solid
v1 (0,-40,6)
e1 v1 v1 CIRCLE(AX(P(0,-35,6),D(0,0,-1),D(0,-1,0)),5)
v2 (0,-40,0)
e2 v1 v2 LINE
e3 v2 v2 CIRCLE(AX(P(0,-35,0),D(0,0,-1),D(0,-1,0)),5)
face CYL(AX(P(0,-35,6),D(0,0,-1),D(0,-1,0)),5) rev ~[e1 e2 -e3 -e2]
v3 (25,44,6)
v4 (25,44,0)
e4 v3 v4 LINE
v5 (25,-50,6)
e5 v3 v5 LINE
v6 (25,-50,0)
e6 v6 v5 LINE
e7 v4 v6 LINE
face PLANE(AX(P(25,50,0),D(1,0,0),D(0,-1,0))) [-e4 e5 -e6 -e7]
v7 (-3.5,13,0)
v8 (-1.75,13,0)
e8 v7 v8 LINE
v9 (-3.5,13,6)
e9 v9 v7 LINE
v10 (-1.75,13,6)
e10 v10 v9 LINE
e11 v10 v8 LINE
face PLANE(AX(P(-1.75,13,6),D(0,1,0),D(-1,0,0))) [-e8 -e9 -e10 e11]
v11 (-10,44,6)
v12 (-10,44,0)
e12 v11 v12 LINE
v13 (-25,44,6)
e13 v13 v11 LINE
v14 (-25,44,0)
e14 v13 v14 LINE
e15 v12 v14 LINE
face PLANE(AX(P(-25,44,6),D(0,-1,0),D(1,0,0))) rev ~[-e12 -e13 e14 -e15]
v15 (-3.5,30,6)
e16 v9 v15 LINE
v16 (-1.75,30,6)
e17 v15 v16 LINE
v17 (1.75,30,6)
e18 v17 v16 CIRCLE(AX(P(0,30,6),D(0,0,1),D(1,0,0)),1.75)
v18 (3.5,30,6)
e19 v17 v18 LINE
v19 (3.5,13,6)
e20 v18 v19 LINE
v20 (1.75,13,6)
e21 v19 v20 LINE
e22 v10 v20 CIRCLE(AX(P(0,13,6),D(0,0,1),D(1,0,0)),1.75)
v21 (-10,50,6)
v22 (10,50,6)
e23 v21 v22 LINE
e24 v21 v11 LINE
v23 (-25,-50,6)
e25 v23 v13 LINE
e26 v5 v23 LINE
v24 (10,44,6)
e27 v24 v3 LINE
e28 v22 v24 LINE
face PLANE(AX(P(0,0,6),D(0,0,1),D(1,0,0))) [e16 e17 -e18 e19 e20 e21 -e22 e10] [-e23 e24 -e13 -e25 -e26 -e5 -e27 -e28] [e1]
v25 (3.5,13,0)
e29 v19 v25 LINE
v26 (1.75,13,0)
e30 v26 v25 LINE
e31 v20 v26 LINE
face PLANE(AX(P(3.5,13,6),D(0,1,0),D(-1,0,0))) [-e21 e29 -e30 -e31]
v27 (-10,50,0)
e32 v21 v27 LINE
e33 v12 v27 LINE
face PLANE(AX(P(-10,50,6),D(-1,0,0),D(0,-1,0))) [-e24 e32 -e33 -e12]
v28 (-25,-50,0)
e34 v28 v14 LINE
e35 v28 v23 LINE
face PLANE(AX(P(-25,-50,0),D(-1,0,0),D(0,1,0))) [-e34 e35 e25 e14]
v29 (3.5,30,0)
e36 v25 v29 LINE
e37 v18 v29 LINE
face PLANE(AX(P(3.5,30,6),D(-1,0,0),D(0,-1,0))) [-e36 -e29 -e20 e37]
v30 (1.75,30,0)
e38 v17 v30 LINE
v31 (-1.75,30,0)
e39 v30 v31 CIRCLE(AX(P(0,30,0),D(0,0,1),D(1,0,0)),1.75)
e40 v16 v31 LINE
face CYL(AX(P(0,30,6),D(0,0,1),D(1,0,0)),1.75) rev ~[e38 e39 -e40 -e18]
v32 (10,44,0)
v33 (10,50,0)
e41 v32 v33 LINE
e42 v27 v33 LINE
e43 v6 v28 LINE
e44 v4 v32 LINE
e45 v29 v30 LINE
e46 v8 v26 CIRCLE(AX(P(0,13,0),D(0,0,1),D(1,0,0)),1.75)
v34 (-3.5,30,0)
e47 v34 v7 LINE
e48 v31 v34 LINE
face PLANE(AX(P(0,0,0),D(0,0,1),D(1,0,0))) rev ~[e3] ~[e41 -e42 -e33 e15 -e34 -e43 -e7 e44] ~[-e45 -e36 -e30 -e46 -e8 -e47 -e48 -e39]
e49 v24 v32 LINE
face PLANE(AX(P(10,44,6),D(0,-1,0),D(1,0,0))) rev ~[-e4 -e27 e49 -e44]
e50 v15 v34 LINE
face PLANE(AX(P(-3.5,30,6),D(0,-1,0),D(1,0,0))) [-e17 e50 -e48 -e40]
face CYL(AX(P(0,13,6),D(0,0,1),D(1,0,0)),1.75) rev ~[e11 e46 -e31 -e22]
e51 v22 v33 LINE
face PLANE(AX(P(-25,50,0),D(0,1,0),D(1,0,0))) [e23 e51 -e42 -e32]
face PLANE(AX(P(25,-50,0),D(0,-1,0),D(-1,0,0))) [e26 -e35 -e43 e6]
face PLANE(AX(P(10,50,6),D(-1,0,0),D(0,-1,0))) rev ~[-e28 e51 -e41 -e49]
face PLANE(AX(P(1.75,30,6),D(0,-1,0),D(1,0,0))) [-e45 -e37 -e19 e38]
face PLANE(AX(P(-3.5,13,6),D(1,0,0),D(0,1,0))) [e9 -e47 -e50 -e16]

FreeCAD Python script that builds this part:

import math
import FreeCAD as App
import Part
import Sketcher
from FreeCAD import Vector
Q = App.Units.Quantity


def add_polygon(sketch, points):
    """Adds a closed chain of lines whose ends are joined by coincident constraints."""
    first, n = sketch.GeometryCount, len(points)
    for a, b in zip(points, points[1:] + points[:1]):
        sketch.addGeometry(Part.LineSegment(App.Vector(*a, 0), App.Vector(*b, 0)), False)
    for i in range(n):
        sketch.addConstraint(Sketcher.Constraint("Coincident", first + i, 2, first + (i + 1) % n, 1))

doc = App.newDocument("Part")
body = doc.addObject("PartDesign::Body", "Body")

sketch1 = doc.addObject("Sketcher::SketchObject", "Sketch")
body.addObject(sketch1)
sketch1.AttachmentSupport = (doc.XY_Plane, [""])
sketch1.MapMode = "FlatFace"
add_polygon(sketch1, [(25, 50), (-25, 50), (-25, -50), (25, -50)])
sketch1.addConstraint([
    Sketcher.Constraint("Horizontal", 0),
    Sketcher.Constraint("Vertical", 1),
    Sketcher.Constraint("Horizontal", 2),
    Sketcher.Constraint("Vertical", 3),
    Sketcher.Constraint("Symmetric", 0, 2, 2, 2, -1, 1),
    Sketcher.Constraint("DistanceX", 0, 2, 0, 1, Q("50 mm")),
    Sketcher.Constraint("DistanceY", 1, 2, 1, 1, Q("100 mm")),
])
pad1 = doc.addObject("PartDesign::Pad", "Pad")
body.addObject(pad1)
pad1.Profile = sketch1
pad1.Length = 6

sketch2 = doc.addObject("Sketcher::SketchObject", "Sketch001")
body.addObject(sketch2)
sketch2.AttachmentSupport = (doc.XY_Plane, [""])
sketch2.MapMode = "FlatFace"
sketch2.AttachmentOffset = App.Placement(Vector(0, 0, 6), App.Rotation())
sketch2.addGeometry(Part.Circle(Vector(0, -35, 0), Vector(0, 0, 1), 5), False)
sketch2.addConstraint([
    Sketcher.Constraint("PointOnObject", 0, 3, -2),
    Sketcher.Constraint("Diameter", 0, Q("10 mm")),
    Sketcher.Constraint("DistanceY", 0, 3, -1, 1, Q("35 mm")),
])
doc.recompute()
hole = doc.addObject("PartDesign::Hole", "Hole")
body.addObject(hole)
hole.Profile = sketch2
hole.ThreadType = "None"
hole.Diameter = 10
hole.DepthType = "ThroughAll"

sketch3 = doc.addObject("Sketcher::SketchObject", "Sketch002")
body.addObject(sketch3)
sketch3.AttachmentSupport = (doc.XY_Plane, [""])
sketch3.MapMode = "FlatFace"
sketch3.AttachmentOffset = App.Placement(Vector(0, 0, 6), App.Rotation())
sketch3.addGeometry([
    Part.LineSegment(Vector(3.5, 30, 0), Vector(1.8, 30, 0)),
    Part.ArcOfCircle(Part.Circle(Vector(0, 30, 0), Vector(0, 0, 1), 1.8), math.radians(0), math.radians(180)),
    Part.LineSegment(Vector(-1.8, 30, 0), Vector(-3.5, 30, 0)),
    Part.LineSegment(Vector(-3.5, 30, 0), Vector(-3.5, 13, 0)),
    Part.LineSegment(Vector(-3.5, 13, 0), Vector(-1.8, 13, 0)),
    Part.ArcOfCircle(Part.Circle(Vector(0, 13, 0), Vector(0, 0, 1), 1.8), math.radians(180), math.radians(360)),
    Part.LineSegment(Vector(1.8, 13, 0), Vector(3.5, 13, 0)),
    Part.LineSegment(Vector(3.5, 13, 0), Vector(3.5, 30, 0)),
], False)
sketch3.addConstraint([
    Sketcher.Constraint("Coincident", 0, 2, 1, 1),
    Sketcher.Constraint("Coincident", 1, 2, 2, 1),
    Sketcher.Constraint("Coincident", 2, 2, 3, 1),
    Sketcher.Constraint("Coincident", 3, 2, 4, 1),
    Sketcher.Constraint("Coincident", 4, 2, 5, 1),
    Sketcher.Constraint("Coincident", 5, 2, 6, 1),
    Sketcher.Constraint("Coincident", 6, 2, 7, 1),
    Sketcher.Constraint("Coincident", 7, 2, 0, 1),
    Sketcher.Constraint("Horizontal", 0),
    Sketcher.Constraint("Horizontal", 2),
    Sketcher.Constraint("Vertical", 3),
    Sketcher.Constraint("Horizontal", 4),
    Sketcher.Constraint("Horizontal", 6),
    Sketcher.Constraint("Vertical", 7),
    Sketcher.Constraint("Equal", 1, 5),
    Sketcher.Constraint("Symmetric", 0, 2, 1, 2, -2),
    Sketcher.Constraint("Symmetric", 4, 2, 5, 2, -2),
    Sketcher.Constraint("Horizontal", 1, 3, 0, 2),
    Sketcher.Constraint("Horizontal", 5, 3, 3, 2),
    Sketcher.Constraint("Equal", 0, 2),
    Sketcher.Constraint("DistanceY", 3, 2, 3, 1, Q("17 mm")),
    Sketcher.Constraint("Radius", 1, Q("1.75 mm")),
    Sketcher.Constraint("DistanceX", 3, 2, 6, 2, Q("7 mm")),
    Sketcher.Constraint("DistanceY", -1, 1, 1, 3, Q("30 mm")),
])
pocket1 = doc.addObject("PartDesign::Pocket", "Pocket")
body.addObject(pocket1)
pocket1.Profile = sketch3
pocket1.Type = "UpToFirst"

sketch4 = doc.addObject("Sketcher::SketchObject", "Sketch003")
body.addObject(sketch4)
sketch4.AttachmentSupport = (doc.XY_Plane, [""])
sketch4.MapMode = "FlatFace"
sketch4.AttachmentOffset = App.Placement(Vector(0, 0, 6), App.Rotation())
add_polygon(sketch4, [(25, 50), (10, 50), (10, 44), (25, 44)])
add_polygon(sketch4, [(-10, 50), (-25, 50), (-25, 44), (-10, 44)])
sketch4.addConstraint([
    Sketcher.Constraint("Horizontal", 0),
    Sketcher.Constraint("Vertical", 1),
    Sketcher.Constraint("Horizontal", 2),
    Sketcher.Constraint("Vertical", 3),
    Sketcher.Constraint("Horizontal", 4),
    Sketcher.Constraint("Vertical", 5),
    Sketcher.Constraint("Horizontal", 6),
    Sketcher.Constraint("Vertical", 7),
    Sketcher.Constraint("Symmetric", 3, 2, 4, 2, -2),
    Sketcher.Constraint("Symmetric", 1, 2, 6, 2, -2),
    Sketcher.Constraint("DistanceX", 0, 2, 0, 1, Q("15 mm")),
    Sketcher.Constraint("DistanceY", 1, 2, 1, 1, Q("6 mm")),
    Sketcher.Constraint("DistanceX", -1, 1, 0, 2, Q("10 mm")),
    Sketcher.Constraint("DistanceY", -1, 1, 0, 2, Q("50 mm")),
])
pocket2 = doc.addObject("PartDesign::Pocket", "Pocket001")
body.addObject(pocket2)
pocket2.Profile = sketch4
pocket2.Type = "UpToFirst"

doc.recompute()
